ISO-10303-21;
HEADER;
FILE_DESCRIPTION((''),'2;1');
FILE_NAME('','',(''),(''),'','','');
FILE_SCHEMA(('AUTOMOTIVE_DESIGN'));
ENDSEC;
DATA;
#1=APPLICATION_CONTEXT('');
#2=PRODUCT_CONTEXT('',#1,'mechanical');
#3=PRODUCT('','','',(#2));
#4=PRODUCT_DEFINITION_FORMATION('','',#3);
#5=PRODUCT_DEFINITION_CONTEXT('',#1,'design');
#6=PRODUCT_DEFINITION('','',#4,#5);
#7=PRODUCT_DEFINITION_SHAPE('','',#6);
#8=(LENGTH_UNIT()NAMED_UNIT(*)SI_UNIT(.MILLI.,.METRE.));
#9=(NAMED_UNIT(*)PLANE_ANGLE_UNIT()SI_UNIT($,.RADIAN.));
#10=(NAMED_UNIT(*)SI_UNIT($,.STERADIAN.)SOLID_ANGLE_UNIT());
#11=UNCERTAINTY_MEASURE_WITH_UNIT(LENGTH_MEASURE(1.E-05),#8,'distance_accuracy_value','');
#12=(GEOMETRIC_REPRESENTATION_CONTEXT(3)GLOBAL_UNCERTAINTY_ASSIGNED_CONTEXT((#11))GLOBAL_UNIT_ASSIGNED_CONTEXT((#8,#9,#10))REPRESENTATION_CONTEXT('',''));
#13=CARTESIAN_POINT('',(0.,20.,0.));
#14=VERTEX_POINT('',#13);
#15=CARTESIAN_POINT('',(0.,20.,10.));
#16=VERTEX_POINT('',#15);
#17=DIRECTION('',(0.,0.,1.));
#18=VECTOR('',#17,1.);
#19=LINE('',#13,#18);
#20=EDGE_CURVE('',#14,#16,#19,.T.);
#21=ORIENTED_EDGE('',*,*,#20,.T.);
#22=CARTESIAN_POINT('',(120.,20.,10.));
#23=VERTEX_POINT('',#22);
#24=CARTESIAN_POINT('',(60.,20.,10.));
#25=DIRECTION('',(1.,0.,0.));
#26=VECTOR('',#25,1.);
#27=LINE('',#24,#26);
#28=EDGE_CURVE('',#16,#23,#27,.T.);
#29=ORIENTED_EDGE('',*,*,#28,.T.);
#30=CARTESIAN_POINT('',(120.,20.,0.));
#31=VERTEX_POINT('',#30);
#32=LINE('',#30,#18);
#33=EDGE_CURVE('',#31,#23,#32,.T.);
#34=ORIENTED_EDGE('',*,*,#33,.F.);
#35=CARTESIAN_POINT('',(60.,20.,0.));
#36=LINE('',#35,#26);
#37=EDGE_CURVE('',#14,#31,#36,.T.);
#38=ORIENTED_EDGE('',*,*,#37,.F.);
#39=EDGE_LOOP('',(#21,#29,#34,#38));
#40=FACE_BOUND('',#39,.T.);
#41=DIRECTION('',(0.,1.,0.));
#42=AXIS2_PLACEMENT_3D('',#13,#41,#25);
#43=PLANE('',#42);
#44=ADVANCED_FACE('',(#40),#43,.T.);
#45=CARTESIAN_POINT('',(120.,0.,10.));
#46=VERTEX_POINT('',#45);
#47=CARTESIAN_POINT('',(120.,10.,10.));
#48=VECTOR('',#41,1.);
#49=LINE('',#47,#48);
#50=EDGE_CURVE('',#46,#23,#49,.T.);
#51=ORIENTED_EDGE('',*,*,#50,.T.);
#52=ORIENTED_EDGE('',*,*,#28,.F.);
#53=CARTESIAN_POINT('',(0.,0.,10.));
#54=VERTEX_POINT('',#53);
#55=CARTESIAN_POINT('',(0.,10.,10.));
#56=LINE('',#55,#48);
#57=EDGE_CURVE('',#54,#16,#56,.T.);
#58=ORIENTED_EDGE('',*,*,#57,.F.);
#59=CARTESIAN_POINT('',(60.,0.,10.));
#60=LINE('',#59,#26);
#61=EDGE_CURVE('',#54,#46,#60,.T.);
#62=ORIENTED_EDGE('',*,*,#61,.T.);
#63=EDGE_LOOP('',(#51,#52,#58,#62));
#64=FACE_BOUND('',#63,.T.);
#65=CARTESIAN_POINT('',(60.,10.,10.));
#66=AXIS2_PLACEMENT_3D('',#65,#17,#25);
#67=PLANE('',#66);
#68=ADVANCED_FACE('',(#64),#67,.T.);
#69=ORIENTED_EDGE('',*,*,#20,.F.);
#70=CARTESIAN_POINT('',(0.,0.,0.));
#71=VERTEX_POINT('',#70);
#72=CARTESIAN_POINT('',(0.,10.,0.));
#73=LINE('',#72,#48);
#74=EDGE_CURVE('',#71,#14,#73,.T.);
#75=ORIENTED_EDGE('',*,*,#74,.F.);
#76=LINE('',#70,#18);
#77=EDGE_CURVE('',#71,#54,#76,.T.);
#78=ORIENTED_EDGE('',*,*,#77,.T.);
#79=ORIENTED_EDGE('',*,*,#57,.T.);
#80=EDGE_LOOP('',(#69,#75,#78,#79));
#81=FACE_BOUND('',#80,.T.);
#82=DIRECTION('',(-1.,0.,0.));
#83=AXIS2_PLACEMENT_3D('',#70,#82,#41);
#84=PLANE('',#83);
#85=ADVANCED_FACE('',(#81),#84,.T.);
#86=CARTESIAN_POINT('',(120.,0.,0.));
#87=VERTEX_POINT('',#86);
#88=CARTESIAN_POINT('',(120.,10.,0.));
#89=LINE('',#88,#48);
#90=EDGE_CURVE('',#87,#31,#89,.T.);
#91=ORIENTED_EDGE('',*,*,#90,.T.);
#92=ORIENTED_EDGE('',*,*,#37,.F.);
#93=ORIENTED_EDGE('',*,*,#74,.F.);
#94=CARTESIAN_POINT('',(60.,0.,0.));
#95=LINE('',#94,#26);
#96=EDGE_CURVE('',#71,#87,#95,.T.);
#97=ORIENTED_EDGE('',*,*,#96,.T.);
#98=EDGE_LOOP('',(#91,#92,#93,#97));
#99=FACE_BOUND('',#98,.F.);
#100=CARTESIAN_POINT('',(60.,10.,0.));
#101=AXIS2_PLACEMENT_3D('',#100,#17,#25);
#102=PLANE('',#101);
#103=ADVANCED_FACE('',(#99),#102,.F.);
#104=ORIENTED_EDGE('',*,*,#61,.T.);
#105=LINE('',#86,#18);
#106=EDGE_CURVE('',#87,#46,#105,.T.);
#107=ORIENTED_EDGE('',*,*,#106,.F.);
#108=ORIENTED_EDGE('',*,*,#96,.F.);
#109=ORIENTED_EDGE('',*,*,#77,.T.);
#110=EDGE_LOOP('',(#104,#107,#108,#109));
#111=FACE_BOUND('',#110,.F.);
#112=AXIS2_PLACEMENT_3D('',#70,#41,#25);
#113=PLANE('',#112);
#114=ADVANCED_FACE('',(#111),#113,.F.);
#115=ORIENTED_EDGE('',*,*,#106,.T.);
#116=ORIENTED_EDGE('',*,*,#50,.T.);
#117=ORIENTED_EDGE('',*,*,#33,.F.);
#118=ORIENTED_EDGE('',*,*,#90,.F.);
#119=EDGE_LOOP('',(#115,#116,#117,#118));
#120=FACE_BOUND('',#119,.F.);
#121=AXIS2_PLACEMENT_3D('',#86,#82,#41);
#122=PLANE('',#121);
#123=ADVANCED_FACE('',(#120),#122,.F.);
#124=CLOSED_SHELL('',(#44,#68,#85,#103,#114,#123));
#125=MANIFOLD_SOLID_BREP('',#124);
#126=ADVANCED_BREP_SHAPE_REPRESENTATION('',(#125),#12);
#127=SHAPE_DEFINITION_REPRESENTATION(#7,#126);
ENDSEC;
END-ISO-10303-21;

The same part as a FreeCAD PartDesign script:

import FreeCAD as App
import Part
import Sketcher

doc = App.newDocument("Part")
body = doc.addObject("PartDesign::Body", "Body")

sketch1 = body.newObject("Sketcher::SketchObject", "Sketch")
sketch1.AttachmentSupport = (doc.getObject("XY_Plane"), [""])
sketch1.MapMode = "FlatFace"
sketch1.addGeometry(Part.LineSegment(App.Vector(0, 20, 0), App.Vector(0, 0, 0)), False)
sketch1.addGeometry(Part.LineSegment(App.Vector(0, 0, 0), App.Vector(120, 0, 0)), False)
sketch1.addGeometry(Part.LineSegment(App.Vector(120, 0, 0), App.Vector(120, 20, 0)), False)
sketch1.addGeometry(Part.LineSegment(App.Vector(120, 20, 0), App.Vector(0, 20, 0)), False)
sketch1.addConstraint(Sketcher.Constraint("Coincident", 0, 2, 1, 1))
sketch1.addConstraint(Sketcher.Constraint("Coincident", 1, 2, 2, 1))
sketch1.addConstraint(Sketcher.Constraint("Coincident", 2, 2, 3, 1))
sketch1.addConstraint(Sketcher.Constraint("Coincident", 3, 2, 0, 1))
sketch1.addConstraint(Sketcher.Constraint("Vertical", 0))
sketch1.addConstraint(Sketcher.Constraint("Horizontal", 1))
sketch1.addConstraint(Sketcher.Constraint("Vertical", 2))
sketch1.addConstraint(Sketcher.Constraint("Horizontal", 3))
sketch1.addConstraint(Sketcher.Constraint("Coincident", 0, 2, -1, 1))
sketch1.addConstraint(Sketcher.Constraint("DistanceX", 1, 1, 1, 2, 120.0))
sketch1.addConstraint(Sketcher.Constraint("DistanceY", 0, 2, 0, 1, 20.0))
pad1 = body.newObject("PartDesign::Pad", "Pad")
pad1.Profile = sketch1
pad1.Length = 10

doc.recompute()
